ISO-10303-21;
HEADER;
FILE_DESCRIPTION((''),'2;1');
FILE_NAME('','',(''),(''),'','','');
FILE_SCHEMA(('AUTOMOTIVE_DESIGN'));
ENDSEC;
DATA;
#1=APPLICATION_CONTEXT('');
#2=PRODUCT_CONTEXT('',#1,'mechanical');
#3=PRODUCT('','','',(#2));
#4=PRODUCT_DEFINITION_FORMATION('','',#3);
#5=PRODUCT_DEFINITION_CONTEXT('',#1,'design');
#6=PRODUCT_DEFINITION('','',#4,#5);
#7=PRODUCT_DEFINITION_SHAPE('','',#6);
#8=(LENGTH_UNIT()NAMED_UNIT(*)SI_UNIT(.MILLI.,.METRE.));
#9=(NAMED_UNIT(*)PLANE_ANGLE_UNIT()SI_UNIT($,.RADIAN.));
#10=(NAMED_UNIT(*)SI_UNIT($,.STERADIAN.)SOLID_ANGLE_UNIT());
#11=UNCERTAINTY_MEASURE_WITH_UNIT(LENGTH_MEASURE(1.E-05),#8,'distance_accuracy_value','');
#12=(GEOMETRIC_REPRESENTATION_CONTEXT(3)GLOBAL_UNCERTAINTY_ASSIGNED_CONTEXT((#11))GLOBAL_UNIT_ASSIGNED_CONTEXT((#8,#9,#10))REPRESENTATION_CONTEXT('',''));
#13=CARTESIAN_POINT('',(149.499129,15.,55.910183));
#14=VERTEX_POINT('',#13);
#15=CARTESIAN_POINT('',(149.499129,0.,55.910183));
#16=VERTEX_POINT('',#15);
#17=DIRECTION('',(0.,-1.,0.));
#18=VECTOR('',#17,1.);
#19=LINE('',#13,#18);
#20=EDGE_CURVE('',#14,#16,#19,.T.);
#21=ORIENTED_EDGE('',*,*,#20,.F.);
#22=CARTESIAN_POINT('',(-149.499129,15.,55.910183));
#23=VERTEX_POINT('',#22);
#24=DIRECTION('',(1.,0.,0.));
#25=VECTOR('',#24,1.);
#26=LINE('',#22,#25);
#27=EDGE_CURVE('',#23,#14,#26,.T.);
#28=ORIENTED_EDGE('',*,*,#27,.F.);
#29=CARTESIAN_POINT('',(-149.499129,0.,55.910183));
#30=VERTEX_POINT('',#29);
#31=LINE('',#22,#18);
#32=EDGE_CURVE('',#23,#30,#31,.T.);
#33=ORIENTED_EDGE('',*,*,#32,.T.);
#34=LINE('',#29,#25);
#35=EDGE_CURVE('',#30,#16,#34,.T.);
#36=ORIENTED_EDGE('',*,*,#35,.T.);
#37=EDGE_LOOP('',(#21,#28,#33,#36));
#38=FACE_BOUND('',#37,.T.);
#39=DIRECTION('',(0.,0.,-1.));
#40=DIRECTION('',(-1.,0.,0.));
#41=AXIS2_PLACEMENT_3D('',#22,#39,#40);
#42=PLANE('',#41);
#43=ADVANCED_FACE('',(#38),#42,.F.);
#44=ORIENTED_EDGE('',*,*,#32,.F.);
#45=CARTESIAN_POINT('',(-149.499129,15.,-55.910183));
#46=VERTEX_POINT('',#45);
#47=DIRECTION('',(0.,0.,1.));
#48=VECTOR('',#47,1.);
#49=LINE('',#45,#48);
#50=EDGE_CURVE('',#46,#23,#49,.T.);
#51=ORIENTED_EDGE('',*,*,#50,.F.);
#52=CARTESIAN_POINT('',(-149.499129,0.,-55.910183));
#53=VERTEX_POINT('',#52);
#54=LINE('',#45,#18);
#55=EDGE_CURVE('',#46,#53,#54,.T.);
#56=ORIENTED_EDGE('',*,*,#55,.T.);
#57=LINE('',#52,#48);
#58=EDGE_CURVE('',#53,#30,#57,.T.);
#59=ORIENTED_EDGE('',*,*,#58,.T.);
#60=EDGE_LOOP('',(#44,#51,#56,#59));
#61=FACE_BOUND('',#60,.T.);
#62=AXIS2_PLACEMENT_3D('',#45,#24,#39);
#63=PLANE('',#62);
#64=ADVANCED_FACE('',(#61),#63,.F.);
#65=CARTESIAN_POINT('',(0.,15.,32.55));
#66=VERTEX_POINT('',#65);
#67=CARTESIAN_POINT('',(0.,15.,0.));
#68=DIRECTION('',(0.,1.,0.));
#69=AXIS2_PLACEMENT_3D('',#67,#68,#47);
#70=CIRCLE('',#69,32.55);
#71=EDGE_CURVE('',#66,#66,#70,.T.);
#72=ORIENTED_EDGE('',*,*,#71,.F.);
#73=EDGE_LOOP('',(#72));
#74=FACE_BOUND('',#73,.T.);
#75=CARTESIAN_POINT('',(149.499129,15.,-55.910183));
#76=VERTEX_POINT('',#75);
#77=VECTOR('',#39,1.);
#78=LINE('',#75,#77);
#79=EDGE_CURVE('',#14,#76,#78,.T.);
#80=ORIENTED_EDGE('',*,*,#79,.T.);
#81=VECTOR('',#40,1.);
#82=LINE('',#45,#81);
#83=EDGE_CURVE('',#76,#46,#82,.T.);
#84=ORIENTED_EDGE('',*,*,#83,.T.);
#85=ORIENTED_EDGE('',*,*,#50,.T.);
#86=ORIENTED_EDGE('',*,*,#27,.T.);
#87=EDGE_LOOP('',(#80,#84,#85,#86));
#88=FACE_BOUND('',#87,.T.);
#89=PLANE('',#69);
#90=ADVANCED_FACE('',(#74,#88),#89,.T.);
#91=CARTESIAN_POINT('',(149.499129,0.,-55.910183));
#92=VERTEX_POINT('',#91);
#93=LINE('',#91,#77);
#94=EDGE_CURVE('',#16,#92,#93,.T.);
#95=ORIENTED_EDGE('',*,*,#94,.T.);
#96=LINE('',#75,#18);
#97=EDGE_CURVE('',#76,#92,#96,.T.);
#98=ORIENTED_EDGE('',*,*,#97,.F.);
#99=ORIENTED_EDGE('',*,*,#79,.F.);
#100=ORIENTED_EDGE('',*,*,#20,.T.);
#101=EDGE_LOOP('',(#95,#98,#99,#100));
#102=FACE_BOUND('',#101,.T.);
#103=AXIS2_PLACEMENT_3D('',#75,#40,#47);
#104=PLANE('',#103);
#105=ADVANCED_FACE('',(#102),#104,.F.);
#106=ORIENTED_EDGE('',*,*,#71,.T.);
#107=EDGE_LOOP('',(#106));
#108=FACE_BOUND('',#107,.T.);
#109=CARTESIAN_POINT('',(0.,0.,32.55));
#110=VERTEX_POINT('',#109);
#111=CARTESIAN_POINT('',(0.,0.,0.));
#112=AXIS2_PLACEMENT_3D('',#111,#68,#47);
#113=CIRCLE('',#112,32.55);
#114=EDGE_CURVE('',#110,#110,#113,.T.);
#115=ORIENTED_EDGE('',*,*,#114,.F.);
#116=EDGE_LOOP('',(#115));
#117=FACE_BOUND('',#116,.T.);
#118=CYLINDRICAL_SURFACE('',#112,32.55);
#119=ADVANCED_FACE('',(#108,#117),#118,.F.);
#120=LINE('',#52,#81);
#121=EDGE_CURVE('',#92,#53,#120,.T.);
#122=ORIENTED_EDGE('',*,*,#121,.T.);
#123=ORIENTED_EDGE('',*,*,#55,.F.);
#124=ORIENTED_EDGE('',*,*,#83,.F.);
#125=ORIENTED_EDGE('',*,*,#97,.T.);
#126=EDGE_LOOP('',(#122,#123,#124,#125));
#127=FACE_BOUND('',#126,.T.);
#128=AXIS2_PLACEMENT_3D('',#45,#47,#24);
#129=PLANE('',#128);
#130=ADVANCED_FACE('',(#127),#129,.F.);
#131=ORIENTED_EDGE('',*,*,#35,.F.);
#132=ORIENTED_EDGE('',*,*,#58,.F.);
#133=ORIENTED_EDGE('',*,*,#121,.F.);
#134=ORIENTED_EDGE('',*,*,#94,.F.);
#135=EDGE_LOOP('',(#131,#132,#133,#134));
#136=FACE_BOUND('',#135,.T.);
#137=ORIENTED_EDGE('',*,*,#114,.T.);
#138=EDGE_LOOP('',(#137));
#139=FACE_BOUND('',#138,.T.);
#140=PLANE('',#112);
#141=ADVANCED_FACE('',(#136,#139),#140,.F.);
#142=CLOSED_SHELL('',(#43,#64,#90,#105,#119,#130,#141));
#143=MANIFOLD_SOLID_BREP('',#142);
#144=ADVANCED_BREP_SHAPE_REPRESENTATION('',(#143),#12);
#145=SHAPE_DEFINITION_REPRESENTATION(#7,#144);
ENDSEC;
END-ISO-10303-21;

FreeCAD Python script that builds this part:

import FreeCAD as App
import Part
import Sketcher
from FreeCAD import Vector
Q = App.Units.Quantity


def add_polygon(sketch, points):
    """Adds a closed chain of lines whose ends are joined by coincident constraints."""
    first, n = sketch.GeometryCount, len(points)
    for a, b in zip(points, points[1:] + points[:1]):
        sketch.addGeometry(Part.LineSegment(App.Vector(*a, 0), App.Vector(*b, 0)), False)
    for i in range(n):
        sketch.addConstraint(Sketcher.Constraint("Coincident", first + i, 2, first + (i + 1) % n, 1))

doc = App.newDocument("Part")
body = doc.addObject("PartDesign::Body", "Body")

# Sketch on XZ plane
sketch1 = body.newObject("Sketcher::SketchObject", "Sketch")
sketch1.AttachmentSupport = (doc.getObject("XZ_Plane"), [""])
sketch1.MapMode = "FlatFace"
add_polygon(sketch1, [(-149, -56), (-149, 56), (149, 56), (149, -56)])  # lines 0-3
sketch1.addConstraint([
    Sketcher.Constraint("Vertical", 0),
    Sketcher.Constraint("Horizontal", 1),
    Sketcher.Constraint("Vertical", 2),
    Sketcher.Constraint("Horizontal", 3),
    Sketcher.Constraint("Symmetric", 0, 2, 2, 2, -1, 1),
    Sketcher.Constraint("DistanceX", 1, 1, 1, 2, Q("298.998259 mm")),
    Sketcher.Constraint("DistanceY", 0, 1, 0, 2, Q("111.820365 mm")),
])
pad1 = body.newObject("PartDesign::Pad", "Pad")
pad1.Profile = sketch1
pad1.Length = 15
pad1.Reversed = True

# Sketch on XZ plane
sketch2 = body.newObject("Sketcher::SketchObject", "Sketch001")
sketch2.AttachmentSupport = (doc.getObject("XZ_Plane"), [""])
sketch2.MapMode = "FlatFace"
sketch2.AttachmentOffset = App.Placement(Vector(0, 0, -15), App.Rotation())
sketch2.addGeometry(Part.Circle(Vector(0, 0, 0), Vector(0, 0, 1), 33), False)
sketch2.addConstraint([
    Sketcher.Constraint("Coincident", 0, 3, -1, 1),
    Sketcher.Constraint("Diameter", 0, Q("65.1 mm")),
])
pocket1 = body.newObject("PartDesign::Pocket", "Pocket")
pocket1.Profile = sketch2
pocket1.Length = 15
pocket1.Reversed = True

doc.recompute()
